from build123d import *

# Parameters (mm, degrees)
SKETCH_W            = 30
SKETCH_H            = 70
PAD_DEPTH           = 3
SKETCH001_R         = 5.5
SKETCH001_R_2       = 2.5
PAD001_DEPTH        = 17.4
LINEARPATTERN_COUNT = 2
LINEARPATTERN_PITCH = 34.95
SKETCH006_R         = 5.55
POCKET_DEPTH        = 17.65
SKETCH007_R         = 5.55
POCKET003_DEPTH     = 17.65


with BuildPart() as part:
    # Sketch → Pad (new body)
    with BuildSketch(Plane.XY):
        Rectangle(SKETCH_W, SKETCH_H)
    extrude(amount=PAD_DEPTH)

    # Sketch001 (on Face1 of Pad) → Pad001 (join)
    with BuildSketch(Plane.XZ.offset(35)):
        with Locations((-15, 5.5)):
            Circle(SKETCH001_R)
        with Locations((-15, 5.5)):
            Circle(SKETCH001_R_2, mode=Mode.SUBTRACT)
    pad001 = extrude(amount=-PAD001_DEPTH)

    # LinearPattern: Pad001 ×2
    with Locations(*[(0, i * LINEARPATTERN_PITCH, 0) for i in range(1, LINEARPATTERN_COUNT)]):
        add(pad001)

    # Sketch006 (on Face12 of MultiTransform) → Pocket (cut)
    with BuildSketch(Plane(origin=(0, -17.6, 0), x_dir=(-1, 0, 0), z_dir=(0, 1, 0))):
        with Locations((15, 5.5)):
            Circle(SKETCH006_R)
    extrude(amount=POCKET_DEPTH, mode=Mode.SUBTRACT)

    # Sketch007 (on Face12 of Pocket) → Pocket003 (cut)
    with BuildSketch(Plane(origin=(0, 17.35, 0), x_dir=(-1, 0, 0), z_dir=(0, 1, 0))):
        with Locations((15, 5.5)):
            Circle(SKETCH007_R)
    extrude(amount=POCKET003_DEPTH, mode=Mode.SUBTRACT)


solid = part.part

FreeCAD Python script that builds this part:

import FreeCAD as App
import Part
import Sketcher
Q = App.Units.Quantity

doc = App.newDocument("Part")
body = doc.addObject("PartDesign::Body", "Body")

# Sketch on XY plane
sketch1 = doc.addObject("Sketcher::SketchObject", "Sketch")
body.addObject(sketch1)
sketch1.AttachmentSupport = (doc.XY_Plane, [""])
sketch1.MapMode = "FlatFace"
sketch1.addGeometry([
    Part.LineSegment(App.Vector(-15, 35, 0), App.Vector(-15, -35, 0)),
    Part.LineSegment(App.Vector(-15, -35, 0), App.Vector(15, -35, 0)),
    Part.LineSegment(App.Vector(15, -35, 0), App.Vector(15, 35, 0)),
    Part.LineSegment(App.Vector(15, 35, 0), App.Vector(-15, 35, 0)),
], False)
sketch1.addConstraint([
    Sketcher.Constraint("Coincident", 0, 2, 1, 1),
    Sketcher.Constraint("Coincident", 1, 2, 2, 1),
    Sketcher.Constraint("Coincident", 2, 2, 3, 1),
    Sketcher.Constraint("Coincident", 3, 2, 0, 1),
    Sketcher.Constraint("Vertical", 0),
    Sketcher.Constraint("Horizontal", 1),
    Sketcher.Constraint("Vertical", 2),
    Sketcher.Constraint("Horizontal", 3),
    Sketcher.Constraint("Symmetric", 0, 2, 2, 2, -1, 1),
    Sketcher.Constraint("DistanceX", 1, 1, 1, 2, Q("30 mm")),
    Sketcher.Constraint("DistanceY", 0, 2, 0, 1, Q("70 mm")),
])
pad1 = doc.addObject("PartDesign::Pad", "Pad")
body.addObject(pad1)
pad1.Profile = sketch1
pad1.Length = 3

# Sketch on XZ plane
sketch2 = doc.addObject("Sketcher::SketchObject", "Sketch001")
body.addObject(sketch2)
sketch2.AttachmentSupport = (doc.XZ_Plane, [""])
sketch2.MapMode = "FlatFace"
sketch2.AttachmentOffset = App.Placement(App.Vector(0, 0, 35), App.Rotation())
sketch2.addGeometry([
    Part.Circle(App.Vector(-15, 5.5, 0), App.Vector(0, 0, 1), 5.5),
    Part.Circle(App.Vector(-15, 5.5, 0), App.Vector(0, 0, 1), 2.5),
], False)
sketch2.addConstraint([
    Sketcher.Constraint("Coincident", 1, 3, 0, 3),
    Sketcher.Constraint("Diameter", 0, Q("11 mm")),
    Sketcher.Constraint("Diameter", 1, Q("5 mm")),
    Sketcher.Constraint("DistanceX", 0, 3, -1, 1, Q("15 mm")),
    Sketcher.Constraint("DistanceY", -1, 1, 0, 3, Q("5.5 mm")),
])
pad2 = doc.addObject("PartDesign::Pad", "Pad001")
body.addObject(pad2)
pad2.Profile = sketch2
pad2.Length = 17.4
pad2.Reversed = True
doc.recompute()

linearpattern = doc.addObject("PartDesign::LinearPattern", "LinearPattern")
body.addObject(linearpattern)
linearpattern.Originals = [pad2]
linearpattern.Direction = (doc.Y_Axis, [""])
linearpattern.Mode = "offset"
linearpattern.Offset = 34.95
linearpattern.Occurrences = 2
body.Tip = linearpattern

# Sketch on XZ plane
sketch3 = doc.addObject("Sketcher::SketchObject", "Sketch002")
body.addObject(sketch3)
sketch3.AttachmentSupport = (doc.XZ_Plane, [""])
sketch3.MapMode = "FlatFace"
sketch3.AttachmentOffset = App.Placement(App.Vector(0, 0, 17.6), App.Rotation())
sketch3.addGeometry(Part.Circle(App.Vector(-15, 6, 0), App.Vector(0, 0, 1), 6), False)
sketch3.addConstraint([
    Sketcher.Constraint("Diameter", 0, Q("11.1 mm")),
    Sketcher.Constraint("DistanceX", 0, 3, -1, 1, Q("15 mm")),
    Sketcher.Constraint("DistanceY", -1, 1, 0, 3, Q("5.5 mm")),
])
pocket1 = doc.addObject("PartDesign::Pocket", "Pocket")
body.addObject(pocket1)
pocket1.Profile = sketch3
pocket1.Length = 17.65

# Sketch on XZ plane
sketch4 = doc.addObject("Sketcher::SketchObject", "Sketch003")
body.addObject(sketch4)
sketch4.AttachmentSupport = (doc.XZ_Plane, [""])
sketch4.MapMode = "FlatFace"
sketch4.AttachmentOffset = App.Placement(App.Vector(0, 0, -17.35), App.Rotation())
sketch4.addGeometry(Part.Circle(App.Vector(-15, 6, 0), App.Vector(0, 0, 1), 6), False)
sketch4.addConstraint([
    Sketcher.Constraint("Diameter", 0, Q("11.1 mm")),
    Sketcher.Constraint("DistanceX", 0, 3, -1, 1, Q("15 mm")),
    Sketcher.Constraint("DistanceY", -1, 1, 0, 3, Q("5.5 mm")),
])
pocket2 = doc.addObject("PartDesign::Pocket", "Pocket001")
body.addObject(pocket2)
pocket2.Profile = sketch4
pocket2.Length = 17.65

doc.recompute()
